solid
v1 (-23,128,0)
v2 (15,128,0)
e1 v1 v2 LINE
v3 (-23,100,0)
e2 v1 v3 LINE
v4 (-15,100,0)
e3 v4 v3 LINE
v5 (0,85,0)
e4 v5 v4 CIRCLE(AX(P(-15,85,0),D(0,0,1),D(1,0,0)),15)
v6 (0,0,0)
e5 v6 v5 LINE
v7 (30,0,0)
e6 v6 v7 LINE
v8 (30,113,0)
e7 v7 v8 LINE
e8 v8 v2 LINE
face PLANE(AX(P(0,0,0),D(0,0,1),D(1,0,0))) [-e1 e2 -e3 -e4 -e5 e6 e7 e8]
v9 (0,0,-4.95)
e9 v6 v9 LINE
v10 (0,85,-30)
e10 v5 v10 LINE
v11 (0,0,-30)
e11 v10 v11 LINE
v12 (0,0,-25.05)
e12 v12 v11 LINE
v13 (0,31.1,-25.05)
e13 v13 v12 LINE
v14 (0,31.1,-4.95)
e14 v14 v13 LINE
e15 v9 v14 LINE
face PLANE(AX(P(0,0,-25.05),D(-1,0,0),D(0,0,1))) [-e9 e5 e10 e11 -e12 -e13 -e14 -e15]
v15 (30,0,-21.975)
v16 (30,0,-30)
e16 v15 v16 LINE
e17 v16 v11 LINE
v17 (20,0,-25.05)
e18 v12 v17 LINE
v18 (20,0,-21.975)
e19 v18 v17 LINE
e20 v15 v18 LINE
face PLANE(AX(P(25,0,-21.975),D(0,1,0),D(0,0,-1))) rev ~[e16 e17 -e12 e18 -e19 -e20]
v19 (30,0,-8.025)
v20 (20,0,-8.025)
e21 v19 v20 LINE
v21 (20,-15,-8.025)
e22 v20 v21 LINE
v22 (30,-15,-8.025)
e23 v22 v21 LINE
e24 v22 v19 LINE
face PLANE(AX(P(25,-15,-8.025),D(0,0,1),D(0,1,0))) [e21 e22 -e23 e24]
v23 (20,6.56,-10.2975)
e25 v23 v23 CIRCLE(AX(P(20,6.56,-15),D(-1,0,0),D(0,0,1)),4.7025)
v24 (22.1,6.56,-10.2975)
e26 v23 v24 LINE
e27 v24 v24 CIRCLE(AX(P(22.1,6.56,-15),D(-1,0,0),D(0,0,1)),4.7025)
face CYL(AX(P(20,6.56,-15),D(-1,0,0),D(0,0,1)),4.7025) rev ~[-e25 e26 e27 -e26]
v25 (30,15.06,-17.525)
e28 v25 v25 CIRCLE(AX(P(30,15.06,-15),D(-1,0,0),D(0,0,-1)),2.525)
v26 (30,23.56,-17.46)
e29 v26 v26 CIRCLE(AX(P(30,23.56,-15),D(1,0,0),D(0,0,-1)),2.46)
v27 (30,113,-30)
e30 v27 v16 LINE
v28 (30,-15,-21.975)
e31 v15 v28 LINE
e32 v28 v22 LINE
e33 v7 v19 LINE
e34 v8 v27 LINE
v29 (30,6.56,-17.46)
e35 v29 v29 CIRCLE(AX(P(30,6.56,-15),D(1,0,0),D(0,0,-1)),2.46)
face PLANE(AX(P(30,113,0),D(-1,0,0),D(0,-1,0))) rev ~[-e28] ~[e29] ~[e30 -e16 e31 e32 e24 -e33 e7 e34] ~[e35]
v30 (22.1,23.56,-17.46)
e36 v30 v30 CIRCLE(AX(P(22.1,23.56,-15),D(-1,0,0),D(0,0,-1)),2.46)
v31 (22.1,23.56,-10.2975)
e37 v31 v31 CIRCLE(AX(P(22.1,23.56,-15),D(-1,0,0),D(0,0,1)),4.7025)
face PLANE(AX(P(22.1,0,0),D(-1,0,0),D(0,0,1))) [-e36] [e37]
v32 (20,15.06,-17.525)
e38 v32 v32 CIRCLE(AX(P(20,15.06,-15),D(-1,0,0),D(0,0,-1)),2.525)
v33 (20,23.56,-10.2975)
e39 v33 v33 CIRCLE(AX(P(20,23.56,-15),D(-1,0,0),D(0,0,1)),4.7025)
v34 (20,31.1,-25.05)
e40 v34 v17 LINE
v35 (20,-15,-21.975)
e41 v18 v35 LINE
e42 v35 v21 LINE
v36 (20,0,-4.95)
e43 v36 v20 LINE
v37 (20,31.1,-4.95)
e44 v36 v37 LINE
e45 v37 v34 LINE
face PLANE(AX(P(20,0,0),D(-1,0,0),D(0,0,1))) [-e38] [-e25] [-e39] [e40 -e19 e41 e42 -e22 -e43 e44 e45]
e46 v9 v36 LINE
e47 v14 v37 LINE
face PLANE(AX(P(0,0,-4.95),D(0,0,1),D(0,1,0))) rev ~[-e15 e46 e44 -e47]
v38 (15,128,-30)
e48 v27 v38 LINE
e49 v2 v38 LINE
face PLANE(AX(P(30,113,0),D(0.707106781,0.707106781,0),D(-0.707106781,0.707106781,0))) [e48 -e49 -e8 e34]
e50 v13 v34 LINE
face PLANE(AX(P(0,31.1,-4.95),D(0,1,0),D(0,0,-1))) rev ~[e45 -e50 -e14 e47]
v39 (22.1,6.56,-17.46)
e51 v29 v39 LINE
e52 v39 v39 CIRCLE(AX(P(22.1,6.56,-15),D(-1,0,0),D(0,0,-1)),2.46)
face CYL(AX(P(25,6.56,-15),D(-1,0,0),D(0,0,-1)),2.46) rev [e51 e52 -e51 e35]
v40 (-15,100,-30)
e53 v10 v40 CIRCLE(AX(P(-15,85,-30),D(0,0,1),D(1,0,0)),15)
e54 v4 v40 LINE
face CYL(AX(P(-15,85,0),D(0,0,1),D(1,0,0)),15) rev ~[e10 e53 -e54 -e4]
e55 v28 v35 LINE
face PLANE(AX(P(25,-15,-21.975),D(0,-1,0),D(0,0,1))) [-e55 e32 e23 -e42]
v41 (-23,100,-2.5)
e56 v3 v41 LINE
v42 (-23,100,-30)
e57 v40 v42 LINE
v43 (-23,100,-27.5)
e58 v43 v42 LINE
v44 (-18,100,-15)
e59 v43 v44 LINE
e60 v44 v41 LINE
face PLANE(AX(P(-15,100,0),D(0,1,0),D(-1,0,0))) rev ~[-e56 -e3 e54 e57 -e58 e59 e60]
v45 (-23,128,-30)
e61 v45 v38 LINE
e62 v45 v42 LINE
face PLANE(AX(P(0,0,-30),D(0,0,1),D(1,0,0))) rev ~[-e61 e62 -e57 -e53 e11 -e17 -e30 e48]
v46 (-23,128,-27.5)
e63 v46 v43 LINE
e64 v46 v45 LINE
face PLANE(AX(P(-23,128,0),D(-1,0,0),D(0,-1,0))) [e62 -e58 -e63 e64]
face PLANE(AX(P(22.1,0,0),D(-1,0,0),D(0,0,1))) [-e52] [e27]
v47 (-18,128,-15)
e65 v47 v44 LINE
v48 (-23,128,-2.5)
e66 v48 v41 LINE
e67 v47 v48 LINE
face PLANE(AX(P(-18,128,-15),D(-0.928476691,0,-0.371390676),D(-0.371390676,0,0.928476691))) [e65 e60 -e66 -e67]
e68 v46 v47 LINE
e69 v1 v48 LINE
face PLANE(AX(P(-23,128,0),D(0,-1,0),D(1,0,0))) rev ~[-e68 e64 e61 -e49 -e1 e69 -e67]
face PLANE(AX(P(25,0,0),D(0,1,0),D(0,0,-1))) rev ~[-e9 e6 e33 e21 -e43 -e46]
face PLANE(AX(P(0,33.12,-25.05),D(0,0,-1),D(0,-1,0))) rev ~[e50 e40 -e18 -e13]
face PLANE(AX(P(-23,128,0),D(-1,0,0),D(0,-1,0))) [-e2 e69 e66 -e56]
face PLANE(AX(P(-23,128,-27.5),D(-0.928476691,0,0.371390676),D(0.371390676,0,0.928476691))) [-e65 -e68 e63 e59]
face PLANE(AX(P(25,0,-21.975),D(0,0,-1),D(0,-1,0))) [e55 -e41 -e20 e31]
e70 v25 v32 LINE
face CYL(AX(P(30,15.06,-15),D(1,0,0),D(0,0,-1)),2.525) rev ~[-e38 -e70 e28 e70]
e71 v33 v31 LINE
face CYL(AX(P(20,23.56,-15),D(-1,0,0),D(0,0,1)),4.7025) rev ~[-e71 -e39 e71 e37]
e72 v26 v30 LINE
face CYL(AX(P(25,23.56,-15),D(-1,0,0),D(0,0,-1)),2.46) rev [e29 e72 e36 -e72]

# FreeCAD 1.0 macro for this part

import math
import FreeCAD as App
import Part
import Sketcher

doc = App.newDocument("Part")
body = doc.addObject("PartDesign::Body", "Body")

# Sketch on XY plane
sketch1 = body.newObject("Sketcher::SketchObject", "Sketch")
sketch1.AttachmentSupport = (doc.getObject("XY_Plane"), [""])
sketch1.MapMode = "FlatFace"
sketch1.addGeometry(Part.LineSegment(App.Vector(0, 40, 0), App.Vector(0, 0, 0)), False)
sketch1.addGeometry(Part.LineSegment(App.Vector(0, 0, 0), App.Vector(25, 0, 0)), False)
sketch1.addGeometry(Part.LineSegment(App.Vector(25, 0, 0), App.Vector(25, 40, 0)), False)
sketch1.addGeometry(Part.LineSegment(App.Vector(25, 40, 0), App.Vector(0, 40, 0)), False)
sketch1.addConstraint(Sketcher.Constraint("Coincident", 0, 2, 1, 1))
sketch1.addConstraint(Sketcher.Constraint("Coincident", 1, 2, 2, 1))
sketch1.addConstraint(Sketcher.Constraint("Coincident", 2, 2, 3, 1))
sketch1.addConstraint(Sketcher.Constraint("Coincident", 3, 2, 0, 1))
sketch1.addConstraint(Sketcher.Constraint("Vertical", 0))
sketch1.addConstraint(Sketcher.Constraint("Horizontal", 1))
sketch1.addConstraint(Sketcher.Constraint("Vertical", 2))
sketch1.addConstraint(Sketcher.Constraint("Horizontal", 3))
sketch1.addConstraint(Sketcher.Constraint("Coincident", 0, 2, -1, 1))
sketch1.addConstraint(Sketcher.Constraint("DistanceX", 1, 1, 1, 2, 25.0))
sketch1.addConstraint(Sketcher.Constraint("DistanceY", 0, 2, 0, 1, 40.0))
pad1 = body.newObject("PartDesign::Pad", "Pad")
pad1.Profile = sketch1
pad1.Length = 30
pad1.Reversed = True

# Sketch on YZ plane
sketch2 = body.newObject("Sketcher::SketchObject", "Sketch001")
sketch2.AttachmentSupport = (doc.getObject("YZ_Plane"), [""])
sketch2.MapMode = "FlatFace"
sketch2.AttachmentOffset = App.Placement(App.Vector(0, 0, 25), App.Rotation())
sketch2.addGeometry(Part.Circle(App.Vector(6.6, -15, 0), App.Vector(0, 0, 1), 2.5), False)
sketch2.addConstraint(Sketcher.Constraint("Diameter", 0, 4.92))
sketch2.addConstraint(Sketcher.Constraint("DistanceY", 0, 3, -1, 1, 15.0))
sketch2.addConstraint(Sketcher.Constraint("DistanceX", -1, 1, 0, 3, 6.56))
pocket1 = body.newObject("PartDesign::Pocket", "Pocket")
pocket1.Profile = sketch2
pocket1.Length = 30

# Sketch on YZ plane
sketch3 = body.newObject("Sketcher::SketchObject", "Sketch002")
sketch3.AttachmentSupport = (doc.getObject("YZ_Plane"), [""])
sketch3.MapMode = "FlatFace"
sketch3.addGeometry(Part.LineSegment(App.Vector(0, -25, 0), App.Vector(0, -5, 0)), False)
sketch3.addGeometry(Part.LineSegment(App.Vector(0, -5, 0), App.Vector(33, -5, 0)), False)
sketch3.addGeometry(Part.LineSegment(App.Vector(33, -5, 0), App.Vector(33, -25, 0)), False)
sketch3.addGeometry(Part.LineSegment(App.Vector(33, -25, 0), App.Vector(0, -25, 0)), False)
sketch3.addConstraint(Sketcher.Constraint("Coincident", 0, 2, 1, 1))
sketch3.addConstraint(Sketcher.Constraint("Coincident", 1, 2, 2, 1))
sketch3.addConstraint(Sketcher.Constraint("Coincident", 2, 2, 3, 1))
sketch3.addConstraint(Sketcher.Constraint("Coincident", 3, 2, 0, 1))
sketch3.addConstraint(Sketcher.Constraint("Vertical", 0))
sketch3.addConstraint(Sketcher.Constraint("Horizontal", 1))
sketch3.addConstraint(Sketcher.Constraint("Vertical", 2))
sketch3.addConstraint(Sketcher.Constraint("Horizontal", 3))
sketch3.addConstraint(Sketcher.Constraint("PointOnObject", 0, 2, -2))
sketch3.addConstraint(Sketcher.Constraint("DistanceY", 0, 1, 0, 2, 20.1))
sketch3.addConstraint(Sketcher.Constraint("DistanceX", 1, 1, 1, 2, 33.12))
sketch3.addConstraint(Sketcher.Constraint("DistanceY", 0, 2, -1, 1, 4.95))
pocket2 = body.newObject("PartDesign::Pocket", "Pocket001")
pocket2.Profile = sketch3
pocket2.Length = 20
pocket2.Reversed = True

# Sketch on XZ plane
sketch4 = body.newObject("Sketcher::SketchObject", "Sketch003")
sketch4.AttachmentSupport = (doc.getObject("XZ_Plane"), [""])
sketch4.MapMode = "FlatFace"
sketch4.addGeometry(Part.LineSegment(App.Vector(25, -8, 0), App.Vector(20, -8, 0)), False)
sketch4.addGeometry(Part.LineSegment(App.Vector(20, -8, 0), App.Vector(20, -22, 0)), False)
sketch4.addGeometry(Part.LineSegment(App.Vector(20, -22, 0), App.Vector(25, -22, 0)), False)
sketch4.addGeometry(Part.LineSegment(App.Vector(25, -22, 0), App.Vector(25, -8, 0)), False)
sketch4.addConstraint(Sketcher.Constraint("Coincident", 0, 2, 1, 1))
sketch4.addConstraint(Sketcher.Constraint("Coincident", 1, 2, 2, 1))
sketch4.addConstraint(Sketcher.Constraint("Coincident", 2, 2, 3, 1))
sketch4.addConstraint(Sketcher.Constraint("Coincident", 3, 2, 0, 1))
sketch4.addConstraint(Sketcher.Constraint("Horizontal", 0))
sketch4.addConstraint(Sketcher.Constraint("Vertical", 1))
sketch4.addConstraint(Sketcher.Constraint("Horizontal", 2))
sketch4.addConstraint(Sketcher.Constraint("Vertical", 3))
sketch4.addConstraint(Sketcher.Constraint("DistanceY", 1, 2, 1, 1, 13.95))
sketch4.addConstraint(Sketcher.Constraint("DistanceX", 0, 2, 0, 1, 5.0))
sketch4.addConstraint(Sketcher.Constraint("DistanceX", -1, 1, 0, 2, 20.0))
sketch4.addConstraint(Sketcher.Constraint("DistanceY", 0, 2, -1, 1, 8.025))
pad2 = body.newObject("PartDesign::Pad", "Pad001")
pad2.Profile = sketch4
pad2.Length = 15

# Sketch on YZ plane
sketch5 = body.newObject("Sketcher::SketchObject", "Sketch004")
sketch5.AttachmentSupport = (doc.getObject("YZ_Plane"), [""])
sketch5.MapMode = "FlatFace"
sketch5.AttachmentOffset = App.Placement(App.Vector(0, 0, 20), App.Rotation())
sketch5.addGeometry(Part.Circle(App.Vector(6.6, -15, 0), App.Vector(0, 0, 1), 4.7), False)
sketch5.addGeometry(Part.Circle(App.Vector(6.6, -15, 0), App.Vector(0, 0, 1), 2.5), False)
sketch5.addConstraint(Sketcher.Constraint("Coincident", 1, 3, 0, 3))
sketch5.addConstraint(Sketcher.Constraint("Diameter", 0, 9.405))
sketch5.addConstraint(Sketcher.Constraint("Diameter", 1, 4.92))
sketch5.addConstraint(Sketcher.Constraint("DistanceY", 0, 3, -1, 1, 15.0))
sketch5.addConstraint(Sketcher.Constraint("DistanceX", -1, 1, 0, 3, 6.56))
pocket3 = body.newObject("PartDesign::Pocket", "Pocket002")
pocket3.Profile = sketch5
pocket3.Length = 2.1
pocket3.Reversed = True

# Sketch on YZ plane
sketch6 = body.newObject("Sketcher::SketchObject", "Sketch005")
sketch6.AttachmentSupport = (doc.getObject("YZ_Plane"), [""])
sketch6.MapMode = "FlatFace"
sketch6.AttachmentOffset = App.Placement(App.Vector(0, 0, 25), App.Rotation())
sketch6.addGeometry(Part.Circle(App.Vector(23.6, -15, 0), App.Vector(0, 0, 1), 2.5), False)
sketch6.addConstraint(Sketcher.Constraint("Diameter", 0, 4.92))
sketch6.addConstraint(Sketcher.Constraint("DistanceY", 0, 3, -1, 1, 15.0))
sketch6.addConstraint(Sketcher.Constraint("DistanceX", -1, 1, 0, 3, 23.56))
pocket4 = body.newObject("PartDesign::Pocket", "Pocket003")
pocket4.Profile = sketch6
pocket4.Length = 10

# Sketch on YZ plane
sketch7 = body.newObject("Sketcher::SketchObject", "Sketch006")
sketch7.AttachmentSupport = (doc.getObject("YZ_Plane"), [""])
sketch7.MapMode = "FlatFace"
sketch7.AttachmentOffset = App.Placement(App.Vector(0, 0, 20), App.Rotation())
sketch7.addGeometry(Part.Circle(App.Vector(23.6, -15, 0), App.Vector(0, 0, 1), 4.7), False)
sketch7.addGeometry(Part.Circle(App.Vector(23.6, -15, 0), App.Vector(0, 0, 1), 2.5), False)
sketch7.addConstraint(Sketcher.Constraint("Coincident", 1, 3, 0, 3))
sketch7.addConstraint(Sketcher.Constraint("Diameter", 0, 9.405))
sketch7.addConstraint(Sketcher.Constraint("Diameter", 1, 4.92))
sketch7.addConstraint(Sketcher.Constraint("DistanceY", 0, 3, -1, 1, 15.0))
sketch7.addConstraint(Sketcher.Constraint("DistanceX", -1, 1, 0, 3, 23.56))
pocket5 = body.newObject("PartDesign::Pocket", "Pocket004")
pocket5.Profile = sketch7
pocket5.Length = 2.1
pocket5.Reversed = True

# Sketch on YZ plane
sketch8 = body.newObject("Sketcher::SketchObject", "Sketch007")
sketch8.AttachmentSupport = (doc.getObject("YZ_Plane"), [""])
sketch8.MapMode = "FlatFace"
sketch8.AttachmentOffset = App.Placement(App.Vector(0, 0, 25), App.Rotation())
sketch8.addGeometry(Part.LineSegment(App.Vector(0, -30, 0), App.Vector(40, -30, 0)), False)
sketch8.addGeometry(Part.LineSegment(App.Vector(40, -30, 0), App.Vector(40, 0, 0)), False)
sketch8.addGeometry(Part.LineSegment(App.Vector(40, 0, 0), App.Vector(0, 0, 0)), False)
sketch8.addGeometry(Part.LineSegment(App.Vector(0, 0, 0), App.Vector(0, -8, 0)), False)
sketch8.addGeometry(Part.LineSegment(App.Vector(0, -8, 0), App.Vector(-15, -8, 0)), False)
sketch8.addGeometry(Part.LineSegment(App.Vector(-15, -8, 0), App.Vector(-15, -22, 0)), False)
sketch8.addGeometry(Part.LineSegment(App.Vector(-15, -22, 0), App.Vector(0, -22, 0)), False)
sketch8.addGeometry(Part.LineSegment(App.Vector(0, -22, 0), App.Vector(0, -30, 0)), False)
sketch8.addGeometry(Part.Circle(App.Vector(6.6, -15, 0), App.Vector(0, 0, 1), 2.5), False)
sketch8.addGeometry(Part.Circle(App.Vector(23.6, -15, 0), App.Vector(0, 0, 1), 2.5), False)
sketch8.addConstraint(Sketcher.Constraint("Coincident", 0, 2, 1, 1))
sketch8.addConstraint(Sketcher.Constraint("Coincident", 1, 2, 2, 1))
sketch8.addConstraint(Sketcher.Constraint("Coincident", 2, 2, 3, 1))
sketch8.addConstraint(Sketcher.Constraint("Coincident", 3, 2, 4, 1))
sketch8.addConstraint(Sketcher.Constraint("Coincident", 4, 2, 5, 1))
sketch8.addConstraint(Sketcher.Constraint("Coincident", 5, 2, 6, 1))
sketch8.addConstraint(Sketcher.Constraint("Coincident", 6, 2, 7, 1))
sketch8.addConstraint(Sketcher.Constraint("Coincident", 7, 2, 0, 1))
sketch8.addConstraint(Sketcher.Constraint("Horizontal", 0))
sketch8.addConstraint(Sketcher.Constraint("Vertical", 1))
sketch8.addConstraint(Sketcher.Constraint("Horizontal", 2))
sketch8.addConstraint(Sketcher.Constraint("Vertical", 3))
sketch8.addConstraint(Sketcher.Constraint("Horizontal", 4))
sketch8.addConstraint(Sketcher.Constraint("Vertical", 5))
sketch8.addConstraint(Sketcher.Constraint("Horizontal", 6))
sketch8.addConstraint(Sketcher.Constraint("Vertical", 7))
sketch8.addConstraint(Sketcher.Constraint("Coincident", 2, 2, -1, 1))
sketch8.addConstraint(Sketcher.Constraint("Equal", 8, 9))
sketch8.addConstraint(Sketcher.Constraint("PointOnObject", 6, 2, -2))
sketch8.addConstraint(Sketcher.Constraint("Horizontal", 8, 3, 9, 3))
sketch8.addConstraint(Sketcher.Constraint("Equal", 3, 7))
sketch8.addConstraint(Sketcher.Constraint("Diameter", 8, 4.92))
sketch8.addConstraint(Sketcher.Constraint("DistanceX", 0, 1, 0, 2, 40.0))
sketch8.addConstraint(Sketcher.Constraint("DistanceX", 4, 2, 4, 1, 15.0))
sketch8.addConstraint(Sketcher.Constraint("DistanceY", 1, 1, 1, 2, 30.0))
sketch8.addConstraint(Sketcher.Constraint("DistanceY", 8, 3, -1, 1, 15.0))
sketch8.addConstraint(Sketcher.Constraint("DistanceX", 8, 3, 9, 3, 17.0))
sketch8.addConstraint(Sketcher.Constraint("DistanceY", 5, 2, 5, 1, 13.95))
sketch8.addConstraint(Sketcher.Constraint("DistanceX", -1, 1, 8, 3, 6.56))
pad3 = body.newObject("PartDesign::Pad", "Pad002")
pad3.Profile = sketch8
pad3.Length = 5

# Sketch on XZ plane
sketch9 = body.newObject("Sketcher::SketchObject", "Sketch008")
sketch9.AttachmentSupport = (doc.getObject("XZ_Plane"), [""])
sketch9.MapMode = "FlatFace"
sketch9.AttachmentOffset = App.Placement(App.Vector(0, 0, -40), App.Rotation())
sketch9.addGeometry(Part.LineSegment(App.Vector(30, -30, 0), App.Vector(0, -30, 0)), False)
sketch9.addGeometry(Part.LineSegment(App.Vector(0, -30, 0), App.Vector(0, 0, 0)), False)
sketch9.addGeometry(Part.LineSegment(App.Vector(0, 0, 0), App.Vector(30, 0, 0)), False)
sketch9.addGeometry(Part.LineSegment(App.Vector(30, 0, 0), App.Vector(30, -30, 0)), False)
sketch9.addConstraint(Sketcher.Constraint("Coincident", 0, 2, 1, 1))
sketch9.addConstraint(Sketcher.Constraint("Coincident", 1, 2, 2, 1))
sketch9.addConstraint(Sketcher.Constraint("Coincident", 2, 2, 3, 1))
sketch9.addConstraint(Sketcher.Constraint("Coincident", 3, 2, 0, 1))
sketch9.addConstraint(Sketcher.Constraint("Horizontal", 0))
sketch9.addConstraint(Sketcher.Constraint("Vertical", 1))
sketch9.addConstraint(Sketcher.Constraint("Horizontal", 2))
sketch9.addConstraint(Sketcher.Constraint("Vertical", 3))
sketch9.addConstraint(Sketcher.Constraint("Coincident", 1, 2, -1, 1))
sketch9.addConstraint(Sketcher.Constraint("Equal", 2, 1))
sketch9.addConstraint(Sketcher.Constraint("DistanceX", 0, 2, 0, 1, 30.0))
pad4 = body.newObject("PartDesign::Pad", "Pad003")
pad4.Profile = sketch9
pad4.Length = 30
pad4.Reversed = True

# Sketch on YZ plane
sketch10 = body.newObject("Sketcher::SketchObject", "Sketch009")
sketch10.AttachmentSupport = (doc.getObject("YZ_Plane"), [""])
sketch10.MapMode = "FlatFace"
sketch10.AttachmentOffset = App.Placement(App.Vector(0, 0, 30), App.Rotation())
sketch10.addGeometry(Part.Circle(App.Vector(15.1, -15, 0), App.Vector(0, 0, 1), 2.5), False)
sketch10.addConstraint(Sketcher.Constraint("Diameter", 0, 5.05))
sketch10.addConstraint(Sketcher.Constraint("DistanceY", 0, 3, -1, 1, 15.0))
sketch10.addConstraint(Sketcher.Constraint("DistanceX", -1, 1, 0, 3, 15.06))
pocket6 = body.newObject("PartDesign::Pocket", "Pocket005")
pocket6.Profile = sketch10
pocket6.Length = 30

# Sketch on XY plane
sketch11 = body.newObject("Sketcher::SketchObject", "Sketch010")
sketch11.AttachmentSupport = (doc.getObject("XY_Plane"), [""])
sketch11.MapMode = "FlatFace"
sketch11.addGeometry(Part.LineSegment(App.Vector(0, 70, 0), App.Vector(30, 70, 0)), False)
sketch11.addGeometry(Part.LineSegment(App.Vector(30, 70, 0), App.Vector(30, 113, 0)), False)
sketch11.addGeometry(Part.LineSegment(App.Vector(30, 113, 0), App.Vector(15, 128, 0)), False)
sketch11.addGeometry(Part.LineSegment(App.Vector(15, 128, 0), App.Vector(-23, 128, 0)), False)
sketch11.addGeometry(Part.LineSegment(App.Vector(-23, 128, 0), App.Vector(-23, 100, 0)), False)
sketch11.addGeometry(Part.LineSegment(App.Vector(-23, 100, 0), App.Vector(-15, 100, 0)), False)
sketch11.addGeometry(Part.ArcOfCircle(Part.Circle(App.Vector(-15, 85, 0), App.Vector(0, 0, 1), 15), math.radians(0), math.radians(90)), False)
sketch11.addGeometry(Part.LineSegment(App.Vector(0, 85, 0), App.Vector(0, 70, 0)), False)
sketch11.addConstraint(Sketcher.Constraint("Coincident", 0, 2, 1, 1))
sketch11.addConstraint(Sketcher.Constraint("Coincident", 1, 2, 2, 1))
sketch11.addConstraint(Sketcher.Constraint("Coincident", 2, 2, 3, 1))
sketch11.addConstraint(Sketcher.Constraint("Coincident", 3, 2, 4, 1))
sketch11.addConstraint(Sketcher.Constraint("Coincident", 4, 2, 5, 1))
sketch11.addConstraint(Sketcher.Constraint("Tangent", 5, 2, 6, 2))
sketch11.addConstraint(Sketcher.Constraint("Tangent", 6, 1, 7, 1))
sketch11.addConstraint(Sketcher.Constraint("Coincident", 7, 2, 0, 1))
sketch11.addConstraint(Sketcher.Constraint("Horizontal", 0))
sketch11.addConstraint(Sketcher.Constraint("Vertical", 1))
sketch11.addConstraint(Sketcher.Constraint("Horizontal", 3))
sketch11.addConstraint(Sketcher.Constraint("Vertical", 4))
sketch11.addConstraint(Sketcher.Constraint("Horizontal", 5))
sketch11.addConstraint(Sketcher.Constraint("Vertical", 7))
sketch11.addConstraint(Sketcher.Constraint("PointOnObject", 6, 1, -2))
sketch11.addConstraint(Sketcher.Constraint("Radius", 6, 15.0))
sketch11.addConstraint(Sketcher.Constraint("DistanceX", 0, 1, 0, 2, 30.0))
sketch11.addConstraint(Sketcher.Constraint("DistanceY", 4, 2, 4, 1, 28.0))
sketch11.addConstraint(Sketcher.Constraint("DistanceY", 7, 2, 7, 1, 15.0))
sketch11.addConstraint(Sketcher.Constraint("DistanceX", -1, 1, 2, 2, 15.0))
sketch11.addConstraint(Sketcher.Constraint("DistanceY", 6, 3, 1, 2, 28.0))
sketch11.addConstraint(Sketcher.Constraint("DistanceX", 3, 2, 3, 1, 38.0))
sketch11.addConstraint(Sketcher.Constraint("DistanceY", -1, 1, 6, 3, 85.0))
pad5 = body.newObject("PartDesign::Pad", "Pad004")
pad5.Profile = sketch11
pad5.Length = 30
pad5.Reversed = True

# Sketch on YZ plane
sketch12 = body.newObject("Sketcher::SketchObject", "Sketch011")
sketch12.AttachmentSupport = (doc.getObject("YZ_Plane"), [""])
sketch12.MapMode = "FlatFace"
sketch12.addGeometry(Part.LineSegment(App.Vector(33.1, -5, 0), App.Vector(33.1, -25.1, 0)), False)
sketch12.addGeometry(Part.LineSegment(App.Vector(33.1, -25.1, 0), App.Vector(31.1, -25.1, 0)), False)
sketch12.addGeometry(Part.LineSegment(App.Vector(31.1, -25.1, 0), App.Vector(31.1, -5, 0)), False)
sketch12.addGeometry(Part.LineSegment(App.Vector(31.1, -5, 0), App.Vector(33.1, -5, 0)), False)
sketch12.addConstraint(Sketcher.Constraint("Coincident", 0, 2, 1, 1))
sketch12.addConstraint(Sketcher.Constraint("Coincident", 1, 2, 2, 1))
sketch12.addConstraint(Sketcher.Constraint("Coincident", 2, 2, 3, 1))
sketch12.addConstraint(Sketcher.Constraint("Coincident", 3, 2, 0, 1))
sketch12.addConstraint(Sketcher.Constraint("Vertical", 0))
sketch12.addConstraint(Sketcher.Constraint("Horizontal", 1))
sketch12.addConstraint(Sketcher.Constraint("Vertical", 2))
sketch12.addConstraint(Sketcher.Constraint("Horizontal", 3))
sketch12.addConstraint(Sketcher.Constraint("DistanceX", 1, 2, 1, 1, 2.02))
sketch12.addConstraint(Sketcher.Constraint("DistanceY", 0, 2, 0, 1, 20.1))
sketch12.addConstraint(Sketcher.Constraint("DistanceX", -1, 1, 1, 2, 31.1))
sketch12.addConstraint(Sketcher.Constraint("DistanceY", 0, 2, -1, 1, 25.05))
pad6 = body.newObject("PartDesign::Pad", "Pad005")
pad6.Profile = sketch12
pad6.Length = 20

# Sketch on XZ plane
sketch13 = body.newObject("Sketcher::SketchObject", "Sketch012")
sketch13.AttachmentSupport = (doc.getObject("XZ_Plane"), [""])
sketch13.MapMode = "FlatFace"
sketch13.AttachmentOffset = App.Placement(App.Vector(0, 0, -128), App.Rotation())
sketch13.addGeometry(Part.LineSegment(App.Vector(-23, -28, 0), App.Vector(-23, -2, 0)), False)
sketch13.addGeometry(Part.LineSegment(App.Vector(-23, -2, 0), App.Vector(-18, -15, 0)), False)
sketch13.addGeometry(Part.LineSegment(App.Vector(-18, -15, 0), App.Vector(-23, -28, 0)), False)
sketch13.addConstraint(Sketcher.Constraint("Coincident", 0, 2, 1, 1))
sketch13.addConstraint(Sketcher.Constraint("Coincident", 1, 2, 2, 1))
sketch13.addConstraint(Sketcher.Constraint("Coincident", 2, 2, 0, 1))
sketch13.addConstraint(Sketcher.Constraint("Vertical", 0))
sketch13.addConstraint(Sketcher.Constraint("Equal", 1, 2))
sketch13.addConstraint(Sketcher.Constraint("DistanceY", 1, 2, 0, 2, 12.5))
sketch13.addConstraint(Sketcher.Constraint("DistanceX", 0, 2, -1, 1, 23.0))
sketch13.addConstraint(Sketcher.Constraint("DistanceX", 1, 2, -1, 1, 18.0))
sketch13.addConstraint(Sketcher.Constraint("DistanceY", 1, 2, -1, 1, 15.0))
pocket7 = body.newObject("PartDesign::Pocket", "Pocket006")
pocket7.Profile = sketch13
pocket7.Type = "ThroughAll"
pocket7.Reversed = True

doc.recompute()
